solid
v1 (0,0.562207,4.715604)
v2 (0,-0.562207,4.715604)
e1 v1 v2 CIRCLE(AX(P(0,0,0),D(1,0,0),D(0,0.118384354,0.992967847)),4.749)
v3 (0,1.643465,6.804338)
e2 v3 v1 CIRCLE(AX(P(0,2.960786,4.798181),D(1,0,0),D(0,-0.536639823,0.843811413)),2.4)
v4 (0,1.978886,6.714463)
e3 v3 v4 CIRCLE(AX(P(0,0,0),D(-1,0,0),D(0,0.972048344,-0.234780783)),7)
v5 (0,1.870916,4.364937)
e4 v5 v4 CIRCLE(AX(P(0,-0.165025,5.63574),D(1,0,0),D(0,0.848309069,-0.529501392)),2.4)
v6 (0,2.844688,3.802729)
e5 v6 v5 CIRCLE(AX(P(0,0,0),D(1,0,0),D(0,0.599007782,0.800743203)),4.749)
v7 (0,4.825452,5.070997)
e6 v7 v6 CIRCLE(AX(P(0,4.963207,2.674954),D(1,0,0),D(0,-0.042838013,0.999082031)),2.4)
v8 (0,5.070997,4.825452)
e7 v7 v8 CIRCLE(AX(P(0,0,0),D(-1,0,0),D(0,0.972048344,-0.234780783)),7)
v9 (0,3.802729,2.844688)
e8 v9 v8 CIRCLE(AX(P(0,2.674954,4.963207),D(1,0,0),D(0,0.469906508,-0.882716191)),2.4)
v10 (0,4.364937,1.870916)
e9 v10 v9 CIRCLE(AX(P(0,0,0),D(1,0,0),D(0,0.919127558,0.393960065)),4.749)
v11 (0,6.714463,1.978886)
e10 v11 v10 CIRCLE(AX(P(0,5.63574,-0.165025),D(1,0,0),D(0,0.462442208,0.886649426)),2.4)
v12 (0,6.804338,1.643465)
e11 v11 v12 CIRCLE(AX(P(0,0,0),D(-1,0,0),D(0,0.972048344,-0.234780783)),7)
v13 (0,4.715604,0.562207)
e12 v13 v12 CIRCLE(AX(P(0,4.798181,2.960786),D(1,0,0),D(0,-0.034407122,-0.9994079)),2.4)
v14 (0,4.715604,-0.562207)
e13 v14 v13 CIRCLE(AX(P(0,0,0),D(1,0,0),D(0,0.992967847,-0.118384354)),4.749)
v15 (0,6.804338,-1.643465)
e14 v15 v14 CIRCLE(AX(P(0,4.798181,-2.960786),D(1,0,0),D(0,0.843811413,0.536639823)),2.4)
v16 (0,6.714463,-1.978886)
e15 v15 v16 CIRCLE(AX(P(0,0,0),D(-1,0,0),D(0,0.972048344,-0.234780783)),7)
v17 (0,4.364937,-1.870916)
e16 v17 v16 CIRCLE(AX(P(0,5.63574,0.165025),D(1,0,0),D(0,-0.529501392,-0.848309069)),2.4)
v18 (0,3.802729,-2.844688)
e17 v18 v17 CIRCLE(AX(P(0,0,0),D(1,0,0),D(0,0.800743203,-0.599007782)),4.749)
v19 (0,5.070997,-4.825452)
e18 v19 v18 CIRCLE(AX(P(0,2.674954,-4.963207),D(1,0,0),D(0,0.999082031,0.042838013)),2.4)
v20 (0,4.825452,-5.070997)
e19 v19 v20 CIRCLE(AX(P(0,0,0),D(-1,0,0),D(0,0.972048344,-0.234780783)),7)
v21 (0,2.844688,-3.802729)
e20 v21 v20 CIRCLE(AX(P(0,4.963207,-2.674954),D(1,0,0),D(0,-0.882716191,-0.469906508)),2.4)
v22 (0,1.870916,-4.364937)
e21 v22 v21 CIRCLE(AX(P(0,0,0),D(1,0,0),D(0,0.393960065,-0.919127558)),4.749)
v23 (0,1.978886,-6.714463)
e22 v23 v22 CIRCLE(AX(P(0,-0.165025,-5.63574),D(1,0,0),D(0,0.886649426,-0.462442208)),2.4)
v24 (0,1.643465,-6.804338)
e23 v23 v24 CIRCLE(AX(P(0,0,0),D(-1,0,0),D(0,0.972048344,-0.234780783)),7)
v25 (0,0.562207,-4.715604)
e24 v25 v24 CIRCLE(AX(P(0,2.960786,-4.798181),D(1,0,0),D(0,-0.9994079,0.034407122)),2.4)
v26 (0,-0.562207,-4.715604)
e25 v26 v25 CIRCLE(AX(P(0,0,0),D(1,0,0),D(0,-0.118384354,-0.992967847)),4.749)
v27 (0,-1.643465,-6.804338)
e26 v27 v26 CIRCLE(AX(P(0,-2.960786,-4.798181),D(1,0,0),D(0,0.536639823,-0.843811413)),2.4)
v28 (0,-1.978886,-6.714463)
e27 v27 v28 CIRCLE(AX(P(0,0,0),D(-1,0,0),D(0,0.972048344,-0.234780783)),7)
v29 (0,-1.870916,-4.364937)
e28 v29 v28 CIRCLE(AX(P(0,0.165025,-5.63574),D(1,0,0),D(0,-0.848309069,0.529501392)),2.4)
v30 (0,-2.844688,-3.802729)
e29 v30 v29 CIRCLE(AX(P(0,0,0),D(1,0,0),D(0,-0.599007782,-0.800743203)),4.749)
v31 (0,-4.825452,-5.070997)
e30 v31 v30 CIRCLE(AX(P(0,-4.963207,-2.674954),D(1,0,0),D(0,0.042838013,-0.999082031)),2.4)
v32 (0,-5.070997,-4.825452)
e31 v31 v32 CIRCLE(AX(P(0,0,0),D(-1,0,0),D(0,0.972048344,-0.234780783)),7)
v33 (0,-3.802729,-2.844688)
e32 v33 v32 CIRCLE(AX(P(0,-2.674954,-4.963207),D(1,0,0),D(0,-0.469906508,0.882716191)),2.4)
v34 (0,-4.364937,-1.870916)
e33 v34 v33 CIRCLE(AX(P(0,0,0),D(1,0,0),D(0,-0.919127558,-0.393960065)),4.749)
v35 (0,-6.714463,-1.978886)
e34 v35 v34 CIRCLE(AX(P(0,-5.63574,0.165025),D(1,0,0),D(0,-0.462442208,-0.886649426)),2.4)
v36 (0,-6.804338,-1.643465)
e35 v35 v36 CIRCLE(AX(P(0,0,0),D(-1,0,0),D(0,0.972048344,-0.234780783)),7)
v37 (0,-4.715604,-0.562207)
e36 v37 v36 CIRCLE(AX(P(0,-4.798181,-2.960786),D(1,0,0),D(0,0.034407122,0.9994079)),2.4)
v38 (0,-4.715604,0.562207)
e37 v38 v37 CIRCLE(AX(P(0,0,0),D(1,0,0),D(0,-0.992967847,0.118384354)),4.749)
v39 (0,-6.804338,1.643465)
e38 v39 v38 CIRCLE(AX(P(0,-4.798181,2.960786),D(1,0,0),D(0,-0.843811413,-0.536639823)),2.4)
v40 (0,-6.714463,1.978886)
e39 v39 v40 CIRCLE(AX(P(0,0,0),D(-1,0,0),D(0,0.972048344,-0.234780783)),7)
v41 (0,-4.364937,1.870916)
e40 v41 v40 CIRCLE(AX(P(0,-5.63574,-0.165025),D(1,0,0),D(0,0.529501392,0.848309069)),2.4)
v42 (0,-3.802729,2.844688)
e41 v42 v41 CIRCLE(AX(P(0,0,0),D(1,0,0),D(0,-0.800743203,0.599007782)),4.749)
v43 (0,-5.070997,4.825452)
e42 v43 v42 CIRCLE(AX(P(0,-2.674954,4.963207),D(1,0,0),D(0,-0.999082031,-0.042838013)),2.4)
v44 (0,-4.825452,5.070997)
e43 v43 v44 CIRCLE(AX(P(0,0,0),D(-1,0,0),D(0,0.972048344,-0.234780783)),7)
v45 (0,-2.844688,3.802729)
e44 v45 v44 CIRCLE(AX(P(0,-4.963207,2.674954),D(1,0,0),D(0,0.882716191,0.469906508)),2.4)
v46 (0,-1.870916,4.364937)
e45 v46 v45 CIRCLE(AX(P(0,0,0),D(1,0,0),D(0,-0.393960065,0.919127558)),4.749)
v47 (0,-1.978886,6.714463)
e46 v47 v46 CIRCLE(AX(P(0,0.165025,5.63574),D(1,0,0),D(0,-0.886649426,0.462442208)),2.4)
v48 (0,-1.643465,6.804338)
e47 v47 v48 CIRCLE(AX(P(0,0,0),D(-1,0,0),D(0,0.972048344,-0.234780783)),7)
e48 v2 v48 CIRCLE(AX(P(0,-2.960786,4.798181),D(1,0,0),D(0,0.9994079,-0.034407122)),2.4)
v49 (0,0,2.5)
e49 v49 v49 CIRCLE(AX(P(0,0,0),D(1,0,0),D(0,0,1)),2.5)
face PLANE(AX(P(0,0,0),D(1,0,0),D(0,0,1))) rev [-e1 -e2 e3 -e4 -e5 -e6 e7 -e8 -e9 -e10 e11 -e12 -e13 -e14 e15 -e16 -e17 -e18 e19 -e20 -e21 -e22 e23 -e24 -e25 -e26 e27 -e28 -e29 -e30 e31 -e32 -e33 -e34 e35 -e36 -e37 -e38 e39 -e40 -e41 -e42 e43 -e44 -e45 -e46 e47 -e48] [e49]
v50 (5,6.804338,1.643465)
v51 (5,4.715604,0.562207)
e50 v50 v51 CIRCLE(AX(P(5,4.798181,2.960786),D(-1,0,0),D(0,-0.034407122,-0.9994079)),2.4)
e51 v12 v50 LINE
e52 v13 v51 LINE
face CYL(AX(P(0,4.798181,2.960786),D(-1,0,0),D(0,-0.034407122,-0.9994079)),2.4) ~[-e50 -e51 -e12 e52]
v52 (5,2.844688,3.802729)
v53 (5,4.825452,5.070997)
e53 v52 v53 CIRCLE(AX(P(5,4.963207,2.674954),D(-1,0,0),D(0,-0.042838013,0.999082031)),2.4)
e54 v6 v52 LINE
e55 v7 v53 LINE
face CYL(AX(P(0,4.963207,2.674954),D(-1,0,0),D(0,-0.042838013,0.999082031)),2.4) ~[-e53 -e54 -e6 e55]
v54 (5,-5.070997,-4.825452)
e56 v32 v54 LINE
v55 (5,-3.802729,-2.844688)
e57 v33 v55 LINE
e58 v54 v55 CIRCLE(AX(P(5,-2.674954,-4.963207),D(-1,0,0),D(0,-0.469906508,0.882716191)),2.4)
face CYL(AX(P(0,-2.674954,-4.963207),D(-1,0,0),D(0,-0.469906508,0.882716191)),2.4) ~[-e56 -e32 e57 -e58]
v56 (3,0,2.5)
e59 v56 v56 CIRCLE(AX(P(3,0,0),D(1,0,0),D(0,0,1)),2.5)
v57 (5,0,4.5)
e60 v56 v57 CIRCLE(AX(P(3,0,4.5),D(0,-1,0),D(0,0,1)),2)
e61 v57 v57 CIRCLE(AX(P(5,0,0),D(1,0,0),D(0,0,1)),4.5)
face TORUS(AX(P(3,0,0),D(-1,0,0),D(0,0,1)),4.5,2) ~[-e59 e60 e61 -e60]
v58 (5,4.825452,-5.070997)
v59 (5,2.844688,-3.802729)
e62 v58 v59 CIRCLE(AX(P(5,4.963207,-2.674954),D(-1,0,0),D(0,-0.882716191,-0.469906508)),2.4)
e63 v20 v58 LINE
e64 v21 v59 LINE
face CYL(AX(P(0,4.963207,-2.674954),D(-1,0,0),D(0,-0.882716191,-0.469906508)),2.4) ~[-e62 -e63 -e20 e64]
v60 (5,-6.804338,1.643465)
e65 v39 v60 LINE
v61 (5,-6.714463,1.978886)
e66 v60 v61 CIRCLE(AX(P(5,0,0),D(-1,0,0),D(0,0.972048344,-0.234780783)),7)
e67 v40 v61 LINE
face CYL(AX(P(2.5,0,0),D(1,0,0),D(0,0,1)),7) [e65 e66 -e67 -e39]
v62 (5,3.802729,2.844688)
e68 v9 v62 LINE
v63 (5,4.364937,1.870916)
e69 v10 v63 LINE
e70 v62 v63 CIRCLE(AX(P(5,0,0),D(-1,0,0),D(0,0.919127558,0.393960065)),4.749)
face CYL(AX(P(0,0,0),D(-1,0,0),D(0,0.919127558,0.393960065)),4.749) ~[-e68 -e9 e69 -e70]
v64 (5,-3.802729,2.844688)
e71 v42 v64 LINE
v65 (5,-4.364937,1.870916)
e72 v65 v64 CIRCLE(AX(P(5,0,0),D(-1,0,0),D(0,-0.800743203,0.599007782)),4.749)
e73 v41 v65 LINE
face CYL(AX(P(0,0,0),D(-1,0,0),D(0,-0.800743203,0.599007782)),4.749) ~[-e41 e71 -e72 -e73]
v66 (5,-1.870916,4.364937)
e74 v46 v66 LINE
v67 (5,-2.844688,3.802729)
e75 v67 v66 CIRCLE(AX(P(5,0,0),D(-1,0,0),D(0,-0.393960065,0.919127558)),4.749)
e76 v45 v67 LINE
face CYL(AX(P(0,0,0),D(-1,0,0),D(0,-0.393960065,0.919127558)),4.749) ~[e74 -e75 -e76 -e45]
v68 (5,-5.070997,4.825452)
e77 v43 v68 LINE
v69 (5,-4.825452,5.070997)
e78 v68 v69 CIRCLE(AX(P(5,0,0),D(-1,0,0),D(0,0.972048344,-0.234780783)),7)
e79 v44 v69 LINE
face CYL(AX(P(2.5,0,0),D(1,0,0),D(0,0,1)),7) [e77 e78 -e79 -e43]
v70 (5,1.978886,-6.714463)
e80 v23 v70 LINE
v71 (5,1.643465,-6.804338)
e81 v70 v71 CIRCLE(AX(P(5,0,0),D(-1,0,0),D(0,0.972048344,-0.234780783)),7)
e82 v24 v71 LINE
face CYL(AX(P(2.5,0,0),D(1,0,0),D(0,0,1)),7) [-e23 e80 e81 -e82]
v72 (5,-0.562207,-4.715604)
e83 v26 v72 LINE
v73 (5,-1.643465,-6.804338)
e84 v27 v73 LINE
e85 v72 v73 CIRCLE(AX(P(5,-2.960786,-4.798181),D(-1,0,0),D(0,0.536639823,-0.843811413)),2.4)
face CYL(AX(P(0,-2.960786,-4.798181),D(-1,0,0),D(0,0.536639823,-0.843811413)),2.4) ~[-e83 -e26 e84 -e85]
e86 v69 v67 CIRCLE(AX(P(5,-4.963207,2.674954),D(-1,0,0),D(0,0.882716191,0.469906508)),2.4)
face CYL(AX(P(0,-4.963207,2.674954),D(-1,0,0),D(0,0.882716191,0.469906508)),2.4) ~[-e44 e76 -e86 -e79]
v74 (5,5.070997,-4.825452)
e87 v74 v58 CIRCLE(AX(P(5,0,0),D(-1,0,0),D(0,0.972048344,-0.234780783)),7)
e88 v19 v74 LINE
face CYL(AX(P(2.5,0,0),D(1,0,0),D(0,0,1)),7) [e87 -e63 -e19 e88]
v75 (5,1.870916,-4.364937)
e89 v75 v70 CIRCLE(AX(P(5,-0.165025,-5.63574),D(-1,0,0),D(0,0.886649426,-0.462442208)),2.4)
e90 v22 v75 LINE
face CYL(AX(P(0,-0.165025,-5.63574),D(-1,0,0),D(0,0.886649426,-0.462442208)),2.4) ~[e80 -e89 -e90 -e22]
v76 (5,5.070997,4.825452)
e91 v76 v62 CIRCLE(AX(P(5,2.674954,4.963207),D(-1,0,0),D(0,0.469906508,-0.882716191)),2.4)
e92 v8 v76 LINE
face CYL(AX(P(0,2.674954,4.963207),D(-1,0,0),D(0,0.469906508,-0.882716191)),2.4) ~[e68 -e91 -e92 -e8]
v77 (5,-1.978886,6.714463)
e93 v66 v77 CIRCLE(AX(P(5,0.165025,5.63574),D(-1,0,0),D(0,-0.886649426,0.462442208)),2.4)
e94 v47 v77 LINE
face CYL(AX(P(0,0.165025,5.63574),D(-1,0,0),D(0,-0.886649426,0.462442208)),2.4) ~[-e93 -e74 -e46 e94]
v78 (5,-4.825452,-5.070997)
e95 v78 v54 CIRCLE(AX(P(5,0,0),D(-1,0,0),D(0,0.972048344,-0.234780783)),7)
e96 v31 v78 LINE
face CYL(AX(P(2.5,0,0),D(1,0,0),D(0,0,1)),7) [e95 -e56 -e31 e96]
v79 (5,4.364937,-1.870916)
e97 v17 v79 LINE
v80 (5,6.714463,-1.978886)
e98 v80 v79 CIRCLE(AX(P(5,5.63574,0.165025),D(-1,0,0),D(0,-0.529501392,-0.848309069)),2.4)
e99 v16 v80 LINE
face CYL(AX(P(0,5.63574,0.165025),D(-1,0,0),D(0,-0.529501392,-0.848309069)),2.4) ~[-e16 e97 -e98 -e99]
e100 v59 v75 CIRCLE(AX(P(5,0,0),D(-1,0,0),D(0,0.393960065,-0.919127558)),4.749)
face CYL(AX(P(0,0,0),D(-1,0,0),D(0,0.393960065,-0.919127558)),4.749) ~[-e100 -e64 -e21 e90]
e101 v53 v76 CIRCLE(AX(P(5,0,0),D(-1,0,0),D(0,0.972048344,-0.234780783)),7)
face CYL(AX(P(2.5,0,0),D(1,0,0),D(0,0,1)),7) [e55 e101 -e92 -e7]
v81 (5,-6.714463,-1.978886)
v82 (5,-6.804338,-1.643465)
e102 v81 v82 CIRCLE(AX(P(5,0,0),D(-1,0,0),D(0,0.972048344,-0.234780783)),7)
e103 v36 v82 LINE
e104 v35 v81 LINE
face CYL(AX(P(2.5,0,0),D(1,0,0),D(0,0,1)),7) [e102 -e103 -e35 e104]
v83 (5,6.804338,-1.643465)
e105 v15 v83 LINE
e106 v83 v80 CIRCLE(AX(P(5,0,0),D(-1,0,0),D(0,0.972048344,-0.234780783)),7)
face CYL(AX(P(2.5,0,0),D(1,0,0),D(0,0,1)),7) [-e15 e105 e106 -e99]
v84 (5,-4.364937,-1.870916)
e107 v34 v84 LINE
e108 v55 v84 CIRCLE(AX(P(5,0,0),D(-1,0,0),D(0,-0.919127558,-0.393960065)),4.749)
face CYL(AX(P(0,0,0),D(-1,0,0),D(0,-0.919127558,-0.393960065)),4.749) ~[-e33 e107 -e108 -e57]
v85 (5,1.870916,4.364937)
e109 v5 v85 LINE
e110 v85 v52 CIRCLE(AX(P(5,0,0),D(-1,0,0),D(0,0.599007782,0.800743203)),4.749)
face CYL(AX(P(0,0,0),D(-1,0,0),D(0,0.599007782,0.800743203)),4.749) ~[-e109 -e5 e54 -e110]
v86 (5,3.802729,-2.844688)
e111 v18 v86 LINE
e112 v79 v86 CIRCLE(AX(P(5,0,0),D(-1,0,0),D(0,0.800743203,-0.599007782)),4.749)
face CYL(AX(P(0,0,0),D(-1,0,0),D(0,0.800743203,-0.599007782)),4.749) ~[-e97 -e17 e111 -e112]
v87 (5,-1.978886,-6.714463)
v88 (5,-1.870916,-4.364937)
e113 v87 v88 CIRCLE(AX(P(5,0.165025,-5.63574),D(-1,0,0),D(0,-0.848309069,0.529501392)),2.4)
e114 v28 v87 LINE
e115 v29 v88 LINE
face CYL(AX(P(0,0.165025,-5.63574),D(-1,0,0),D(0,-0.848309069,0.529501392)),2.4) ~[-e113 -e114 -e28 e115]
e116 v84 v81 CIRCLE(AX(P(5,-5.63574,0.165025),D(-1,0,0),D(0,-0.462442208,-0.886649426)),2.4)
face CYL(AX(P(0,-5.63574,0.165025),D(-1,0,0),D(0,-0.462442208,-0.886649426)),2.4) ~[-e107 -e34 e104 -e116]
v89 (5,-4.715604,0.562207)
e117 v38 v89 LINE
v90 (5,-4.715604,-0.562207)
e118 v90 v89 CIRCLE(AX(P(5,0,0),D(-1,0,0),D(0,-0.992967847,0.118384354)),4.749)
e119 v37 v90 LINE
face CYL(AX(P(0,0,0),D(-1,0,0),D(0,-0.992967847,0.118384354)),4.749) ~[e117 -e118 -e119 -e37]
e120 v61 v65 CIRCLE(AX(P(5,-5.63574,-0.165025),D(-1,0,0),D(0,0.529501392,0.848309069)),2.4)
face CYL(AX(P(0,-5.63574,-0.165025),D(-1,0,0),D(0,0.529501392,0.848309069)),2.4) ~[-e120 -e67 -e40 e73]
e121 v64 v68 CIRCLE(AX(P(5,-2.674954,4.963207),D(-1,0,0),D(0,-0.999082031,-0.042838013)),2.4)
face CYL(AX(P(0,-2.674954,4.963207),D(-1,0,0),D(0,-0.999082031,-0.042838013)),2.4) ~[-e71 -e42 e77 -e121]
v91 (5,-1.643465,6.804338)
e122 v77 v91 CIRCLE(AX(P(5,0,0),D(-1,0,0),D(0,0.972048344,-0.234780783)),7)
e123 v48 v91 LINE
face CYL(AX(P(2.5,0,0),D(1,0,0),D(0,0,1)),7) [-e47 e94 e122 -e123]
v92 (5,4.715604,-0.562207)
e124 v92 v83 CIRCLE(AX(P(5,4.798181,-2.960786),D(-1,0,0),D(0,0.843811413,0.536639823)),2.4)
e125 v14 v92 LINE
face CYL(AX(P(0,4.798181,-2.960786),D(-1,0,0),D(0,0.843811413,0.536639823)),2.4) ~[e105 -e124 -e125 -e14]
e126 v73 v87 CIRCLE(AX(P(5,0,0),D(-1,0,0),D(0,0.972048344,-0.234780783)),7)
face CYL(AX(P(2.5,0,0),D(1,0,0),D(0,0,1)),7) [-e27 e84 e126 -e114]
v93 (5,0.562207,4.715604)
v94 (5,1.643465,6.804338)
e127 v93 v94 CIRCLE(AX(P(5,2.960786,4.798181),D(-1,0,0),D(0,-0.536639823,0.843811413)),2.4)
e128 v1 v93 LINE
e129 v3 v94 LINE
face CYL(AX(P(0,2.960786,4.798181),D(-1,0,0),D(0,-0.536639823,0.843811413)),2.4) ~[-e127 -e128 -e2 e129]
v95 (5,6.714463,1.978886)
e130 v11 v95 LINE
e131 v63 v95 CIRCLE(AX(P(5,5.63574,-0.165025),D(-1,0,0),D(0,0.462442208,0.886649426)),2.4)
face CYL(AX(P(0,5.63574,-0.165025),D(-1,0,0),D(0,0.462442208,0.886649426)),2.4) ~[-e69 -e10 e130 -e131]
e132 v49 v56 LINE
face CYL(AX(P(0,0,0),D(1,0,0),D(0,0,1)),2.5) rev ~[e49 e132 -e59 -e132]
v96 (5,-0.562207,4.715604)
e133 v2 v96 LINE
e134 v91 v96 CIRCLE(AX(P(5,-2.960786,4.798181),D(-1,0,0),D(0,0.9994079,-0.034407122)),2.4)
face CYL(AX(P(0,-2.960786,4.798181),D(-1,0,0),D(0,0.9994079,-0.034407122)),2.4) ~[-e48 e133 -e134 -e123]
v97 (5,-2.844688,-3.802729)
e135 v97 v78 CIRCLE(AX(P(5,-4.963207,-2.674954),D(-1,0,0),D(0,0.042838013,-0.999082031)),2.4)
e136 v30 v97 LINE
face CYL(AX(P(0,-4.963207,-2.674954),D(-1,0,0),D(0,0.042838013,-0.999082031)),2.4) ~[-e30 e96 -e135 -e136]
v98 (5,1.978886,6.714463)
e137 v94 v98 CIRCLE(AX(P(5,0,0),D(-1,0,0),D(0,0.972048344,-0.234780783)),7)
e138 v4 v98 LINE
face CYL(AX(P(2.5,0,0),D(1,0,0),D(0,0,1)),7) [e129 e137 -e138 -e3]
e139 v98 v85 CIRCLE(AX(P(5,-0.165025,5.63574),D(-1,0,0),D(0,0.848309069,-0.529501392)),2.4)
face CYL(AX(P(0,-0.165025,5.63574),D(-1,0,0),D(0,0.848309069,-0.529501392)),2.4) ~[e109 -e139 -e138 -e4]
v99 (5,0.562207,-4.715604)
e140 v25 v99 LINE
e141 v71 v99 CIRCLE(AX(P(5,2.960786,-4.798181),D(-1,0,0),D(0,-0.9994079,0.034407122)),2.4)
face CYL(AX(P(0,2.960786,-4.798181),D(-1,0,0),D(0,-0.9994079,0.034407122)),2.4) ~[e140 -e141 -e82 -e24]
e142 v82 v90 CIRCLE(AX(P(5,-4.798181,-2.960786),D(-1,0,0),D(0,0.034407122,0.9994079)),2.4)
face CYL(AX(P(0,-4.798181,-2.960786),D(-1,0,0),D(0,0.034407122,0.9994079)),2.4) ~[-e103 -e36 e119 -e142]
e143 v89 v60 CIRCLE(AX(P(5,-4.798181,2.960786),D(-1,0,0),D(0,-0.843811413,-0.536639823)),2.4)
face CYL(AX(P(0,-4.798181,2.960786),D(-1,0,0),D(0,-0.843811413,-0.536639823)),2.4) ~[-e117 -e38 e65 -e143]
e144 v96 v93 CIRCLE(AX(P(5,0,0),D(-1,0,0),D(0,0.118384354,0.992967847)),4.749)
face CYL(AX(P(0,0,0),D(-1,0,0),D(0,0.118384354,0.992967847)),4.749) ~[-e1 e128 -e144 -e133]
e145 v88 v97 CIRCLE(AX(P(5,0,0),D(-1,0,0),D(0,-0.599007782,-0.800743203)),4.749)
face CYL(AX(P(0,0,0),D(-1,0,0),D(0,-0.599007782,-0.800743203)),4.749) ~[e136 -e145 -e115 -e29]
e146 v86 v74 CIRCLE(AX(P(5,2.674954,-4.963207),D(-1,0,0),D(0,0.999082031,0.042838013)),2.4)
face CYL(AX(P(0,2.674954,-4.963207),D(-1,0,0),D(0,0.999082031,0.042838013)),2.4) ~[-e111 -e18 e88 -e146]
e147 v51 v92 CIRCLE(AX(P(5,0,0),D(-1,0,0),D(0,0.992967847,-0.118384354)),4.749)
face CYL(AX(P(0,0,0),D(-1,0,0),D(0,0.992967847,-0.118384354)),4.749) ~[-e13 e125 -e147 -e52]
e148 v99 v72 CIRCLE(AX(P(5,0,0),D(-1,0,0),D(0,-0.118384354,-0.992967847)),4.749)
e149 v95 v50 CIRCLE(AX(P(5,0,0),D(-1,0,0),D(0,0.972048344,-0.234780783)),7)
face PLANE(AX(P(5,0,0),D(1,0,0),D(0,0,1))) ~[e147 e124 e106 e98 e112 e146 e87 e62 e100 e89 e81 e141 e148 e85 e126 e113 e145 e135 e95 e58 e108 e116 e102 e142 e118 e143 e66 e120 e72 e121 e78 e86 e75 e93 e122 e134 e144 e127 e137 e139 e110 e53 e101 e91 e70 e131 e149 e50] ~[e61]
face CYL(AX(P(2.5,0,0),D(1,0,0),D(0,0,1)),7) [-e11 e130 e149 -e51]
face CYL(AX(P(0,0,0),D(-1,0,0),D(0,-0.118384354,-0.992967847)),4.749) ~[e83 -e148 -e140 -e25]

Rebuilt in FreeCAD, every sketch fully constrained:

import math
import FreeCAD as App
import Part
import Sketcher
from FreeCAD import Vector


def edges_at(feature, points):
    """Names of the edges that pass closest to the given points."""
    edges = feature.Shape.Edges
    near = lambda p: min(range(len(edges)), key=lambda i: edges[i].distToShape(Part.Vertex(*p))[0])
    return sorted({f"Edge{near(p) + 1}" for p in points})

doc = App.newDocument("Part")
body = doc.addObject("PartDesign::Body", "Body")

# Sketch on XZ plane
sketch1 = body.newObject("Sketcher::SketchObject", "Sketch")
sketch1.AttachmentSupport = (doc.getObject("XZ_Plane"), [""])
sketch1.MapMode = "FlatFace"
sketch1.addGeometry([
    Part.LineSegment(Vector(0, -7, 0), Vector(0, 0, 0)),
    Part.LineSegment(Vector(0, 0, 0), Vector(5, 0, 0)),
    Part.LineSegment(Vector(5, 0, 0), Vector(5, -7, 0)),
    Part.LineSegment(Vector(5, -7, 0), Vector(0, -7, 0)),
], False)
sketch1.addConstraint([
    Sketcher.Constraint("Coincident", 0, 2, 1, 1),
    Sketcher.Constraint("Coincident", 1, 2, 2, 1),
    Sketcher.Constraint("Coincident", 2, 2, 3, 1),
    Sketcher.Constraint("Coincident", 3, 2, 0, 1),
    Sketcher.Constraint("Vertical", 0),
    Sketcher.Constraint("Horizontal", 1),
    Sketcher.Constraint("Vertical", 2),
    Sketcher.Constraint("Horizontal", 3),
    Sketcher.Constraint("Coincident", 0, 2, -1, 1),
    Sketcher.Constraint("DistanceX", 1, 1, 1, 2, 5.0),
    Sketcher.Constraint("DistanceY", 0, 1, 0, 2, 7.0),
])
revolution = body.newObject("PartDesign::Revolution", "Revolution")
revolution.Profile = sketch1
revolution.ReferenceAxis = (sketch1, ["H_Axis"])
revolution.Angle = 360

# Sketch on YZ plane
sketch2 = body.newObject("Sketcher::SketchObject", "Sketch001")
sketch2.AttachmentSupport = (doc.getObject("YZ_Plane"), [""])
sketch2.MapMode = "FlatFace"
sketch2.addGeometry([
    Part.ArcOfCircle(Part.Circle(Vector(0, 0, 0), Vector(0, 0, 1), 4.7), math.radians(-6.8), math.radians(6.8)),
    Part.ArcOfCircle(Part.Circle(Vector(4.8, -3, 0), Vector(0, 0, 1), 2.4), math.radians(32), math.radians(92)),
    Part.ArcOfCircle(Part.Circle(Vector(0, 0, 0), Vector(0, 0, 1), 7), math.radians(-14), math.radians(14)),
    Part.ArcOfCircle(Part.Circle(Vector(4.8, 3, 0), Vector(0, 0, 1), 2.4), math.radians(-92), math.radians(-32)),
], False)
sketch2.addConstraint([
    Sketcher.Constraint("Coincident", 0, 1, 1, 2),
    Sketcher.Constraint("Coincident", 1, 1, 2, 1),
    Sketcher.Constraint("Coincident", 2, 2, 3, 2),
    Sketcher.Constraint("Coincident", 3, 1, 0, 2),
    Sketcher.Constraint("Coincident", 0, 3, -1, 1),
    Sketcher.Constraint("Coincident", 2, 3, -1, 1),
    Sketcher.Constraint("Equal", 1, 3),
    Sketcher.Constraint("Symmetric", 1, 3, 3, 3, -1),
    Sketcher.Constraint("Radius", 1, 2.4),
    Sketcher.Constraint("Radius", 0, 4.749),
    Sketcher.Constraint("Radius", 2, 7.0254),
    Sketcher.Constraint("DistanceY", 1, 1, 2, 2, 3.345701),
    Sketcher.Constraint("DistanceX", -1, 1, 1, 3, 4.798181),
])
pocket1 = body.newObject("PartDesign::Pocket", "Pocket")
pocket1.Profile = sketch2
pocket1.Type = "ThroughAll"
pocket1.Reversed = True
doc.recompute()

polarpattern = body.newObject("PartDesign::PolarPattern", "PolarPattern")
polarpattern.Originals = [pocket1]
polarpattern.Axis = (doc.getObject("X_Axis"), [""])
polarpattern.Angle = 360
polarpattern.Occurrences = 12
body.Tip = polarpattern

# Sketch on YZ plane
sketch3 = body.newObject("Sketcher::SketchObject", "Sketch002")
sketch3.AttachmentSupport = (doc.getObject("YZ_Plane"), [""])
sketch3.MapMode = "FlatFace"
sketch3.addGeometry(Part.Circle(Vector(0, 0, 0), Vector(0, 0, 1), 2.5), False)
sketch3.addConstraint([
    Sketcher.Constraint("Coincident", 0, 3, -1, 1),
    Sketcher.Constraint("Diameter", 0, 5.0),
])
pocket2 = body.newObject("PartDesign::Pocket", "Pocket001")
pocket2.Profile = sketch3
pocket2.Length = 100.000102
pocket2.Midplane = True
doc.recompute()

fillet = body.newObject("PartDesign::Fillet", "Fillet")
fillet.Base = (pocket2, edges_at(pocket2, [(5, 0, -2.5)]))
fillet.Radius = 2

doc.recompute()
